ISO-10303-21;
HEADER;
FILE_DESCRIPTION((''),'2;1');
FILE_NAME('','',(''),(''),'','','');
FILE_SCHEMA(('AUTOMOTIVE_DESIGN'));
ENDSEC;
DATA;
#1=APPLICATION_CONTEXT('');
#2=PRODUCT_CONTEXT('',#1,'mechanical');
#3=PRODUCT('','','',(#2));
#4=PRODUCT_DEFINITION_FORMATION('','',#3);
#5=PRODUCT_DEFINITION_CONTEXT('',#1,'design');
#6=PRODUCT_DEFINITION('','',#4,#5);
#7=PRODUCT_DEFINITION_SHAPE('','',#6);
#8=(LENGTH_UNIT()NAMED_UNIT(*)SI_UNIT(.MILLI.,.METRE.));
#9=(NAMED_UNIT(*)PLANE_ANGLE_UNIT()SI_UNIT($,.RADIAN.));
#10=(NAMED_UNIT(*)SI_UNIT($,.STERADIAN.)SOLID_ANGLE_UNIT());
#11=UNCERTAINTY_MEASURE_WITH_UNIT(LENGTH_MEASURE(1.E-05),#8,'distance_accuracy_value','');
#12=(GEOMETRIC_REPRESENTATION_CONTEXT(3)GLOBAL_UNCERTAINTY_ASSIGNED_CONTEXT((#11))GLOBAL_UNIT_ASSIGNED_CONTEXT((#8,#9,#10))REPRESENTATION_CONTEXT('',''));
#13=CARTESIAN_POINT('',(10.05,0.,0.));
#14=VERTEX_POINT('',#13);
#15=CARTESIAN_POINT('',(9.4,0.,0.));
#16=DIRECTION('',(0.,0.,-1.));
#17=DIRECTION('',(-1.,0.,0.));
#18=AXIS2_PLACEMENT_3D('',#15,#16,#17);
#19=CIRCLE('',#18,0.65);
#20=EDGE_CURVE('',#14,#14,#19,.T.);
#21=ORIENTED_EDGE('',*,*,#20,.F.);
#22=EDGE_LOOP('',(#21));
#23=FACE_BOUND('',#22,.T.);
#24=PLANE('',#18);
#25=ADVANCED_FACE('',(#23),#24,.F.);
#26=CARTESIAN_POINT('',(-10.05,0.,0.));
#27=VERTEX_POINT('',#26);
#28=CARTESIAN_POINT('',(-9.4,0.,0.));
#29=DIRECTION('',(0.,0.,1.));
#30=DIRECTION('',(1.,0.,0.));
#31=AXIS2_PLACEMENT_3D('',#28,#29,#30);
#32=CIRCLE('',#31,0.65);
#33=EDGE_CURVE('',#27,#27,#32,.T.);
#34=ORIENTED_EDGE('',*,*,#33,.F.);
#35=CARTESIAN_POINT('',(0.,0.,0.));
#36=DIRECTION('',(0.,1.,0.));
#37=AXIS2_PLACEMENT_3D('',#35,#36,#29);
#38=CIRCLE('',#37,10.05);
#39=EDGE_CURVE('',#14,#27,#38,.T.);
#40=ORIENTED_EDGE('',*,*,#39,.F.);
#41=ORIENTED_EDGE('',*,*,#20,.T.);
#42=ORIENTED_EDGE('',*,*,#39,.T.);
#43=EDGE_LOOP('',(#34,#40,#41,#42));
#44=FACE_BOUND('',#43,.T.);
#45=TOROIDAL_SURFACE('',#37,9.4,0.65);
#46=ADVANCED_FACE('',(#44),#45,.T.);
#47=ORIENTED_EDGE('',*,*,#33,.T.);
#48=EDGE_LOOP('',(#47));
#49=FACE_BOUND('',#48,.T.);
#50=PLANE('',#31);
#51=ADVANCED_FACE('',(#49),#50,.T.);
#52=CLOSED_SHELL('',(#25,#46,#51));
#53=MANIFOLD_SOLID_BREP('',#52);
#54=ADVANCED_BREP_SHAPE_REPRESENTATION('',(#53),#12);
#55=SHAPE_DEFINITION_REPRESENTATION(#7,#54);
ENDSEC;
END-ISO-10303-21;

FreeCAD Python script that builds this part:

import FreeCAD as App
import Part
import Sketcher

V = App.Vector

doc = App.newDocument("Part")
body = doc.addObject("PartDesign::Body", "Body")

sketch1 = doc.addObject("Sketcher::SketchObject", "Sketch")
body.addObject(sketch1)
sketch1.AttachmentSupport = (doc.XY_Plane, [""])
sketch1.MapMode = "FlatFace"
sketch1.addGeometry(Part.Circle(V(-9.4, 0, 0), V(0, 0, 1), 0.7), False)
sketch1.addConstraint([
    Sketcher.Constraint("PointOnObject", 0, 3, -1),
    Sketcher.Constraint("Diameter", 0, 1.3),
    Sketcher.Constraint("DistanceX", 0, 3, -1, 1, 9.4),
])
revolution = doc.addObject("PartDesign::Revolution", "Revolution")
body.addObject(revolution)
revolution.Profile = sketch1
revolution.ReferenceAxis = (sketch1, ["V_Axis"])
revolution.Angle = 180
revolution.Reversed = True

doc.recompute()
